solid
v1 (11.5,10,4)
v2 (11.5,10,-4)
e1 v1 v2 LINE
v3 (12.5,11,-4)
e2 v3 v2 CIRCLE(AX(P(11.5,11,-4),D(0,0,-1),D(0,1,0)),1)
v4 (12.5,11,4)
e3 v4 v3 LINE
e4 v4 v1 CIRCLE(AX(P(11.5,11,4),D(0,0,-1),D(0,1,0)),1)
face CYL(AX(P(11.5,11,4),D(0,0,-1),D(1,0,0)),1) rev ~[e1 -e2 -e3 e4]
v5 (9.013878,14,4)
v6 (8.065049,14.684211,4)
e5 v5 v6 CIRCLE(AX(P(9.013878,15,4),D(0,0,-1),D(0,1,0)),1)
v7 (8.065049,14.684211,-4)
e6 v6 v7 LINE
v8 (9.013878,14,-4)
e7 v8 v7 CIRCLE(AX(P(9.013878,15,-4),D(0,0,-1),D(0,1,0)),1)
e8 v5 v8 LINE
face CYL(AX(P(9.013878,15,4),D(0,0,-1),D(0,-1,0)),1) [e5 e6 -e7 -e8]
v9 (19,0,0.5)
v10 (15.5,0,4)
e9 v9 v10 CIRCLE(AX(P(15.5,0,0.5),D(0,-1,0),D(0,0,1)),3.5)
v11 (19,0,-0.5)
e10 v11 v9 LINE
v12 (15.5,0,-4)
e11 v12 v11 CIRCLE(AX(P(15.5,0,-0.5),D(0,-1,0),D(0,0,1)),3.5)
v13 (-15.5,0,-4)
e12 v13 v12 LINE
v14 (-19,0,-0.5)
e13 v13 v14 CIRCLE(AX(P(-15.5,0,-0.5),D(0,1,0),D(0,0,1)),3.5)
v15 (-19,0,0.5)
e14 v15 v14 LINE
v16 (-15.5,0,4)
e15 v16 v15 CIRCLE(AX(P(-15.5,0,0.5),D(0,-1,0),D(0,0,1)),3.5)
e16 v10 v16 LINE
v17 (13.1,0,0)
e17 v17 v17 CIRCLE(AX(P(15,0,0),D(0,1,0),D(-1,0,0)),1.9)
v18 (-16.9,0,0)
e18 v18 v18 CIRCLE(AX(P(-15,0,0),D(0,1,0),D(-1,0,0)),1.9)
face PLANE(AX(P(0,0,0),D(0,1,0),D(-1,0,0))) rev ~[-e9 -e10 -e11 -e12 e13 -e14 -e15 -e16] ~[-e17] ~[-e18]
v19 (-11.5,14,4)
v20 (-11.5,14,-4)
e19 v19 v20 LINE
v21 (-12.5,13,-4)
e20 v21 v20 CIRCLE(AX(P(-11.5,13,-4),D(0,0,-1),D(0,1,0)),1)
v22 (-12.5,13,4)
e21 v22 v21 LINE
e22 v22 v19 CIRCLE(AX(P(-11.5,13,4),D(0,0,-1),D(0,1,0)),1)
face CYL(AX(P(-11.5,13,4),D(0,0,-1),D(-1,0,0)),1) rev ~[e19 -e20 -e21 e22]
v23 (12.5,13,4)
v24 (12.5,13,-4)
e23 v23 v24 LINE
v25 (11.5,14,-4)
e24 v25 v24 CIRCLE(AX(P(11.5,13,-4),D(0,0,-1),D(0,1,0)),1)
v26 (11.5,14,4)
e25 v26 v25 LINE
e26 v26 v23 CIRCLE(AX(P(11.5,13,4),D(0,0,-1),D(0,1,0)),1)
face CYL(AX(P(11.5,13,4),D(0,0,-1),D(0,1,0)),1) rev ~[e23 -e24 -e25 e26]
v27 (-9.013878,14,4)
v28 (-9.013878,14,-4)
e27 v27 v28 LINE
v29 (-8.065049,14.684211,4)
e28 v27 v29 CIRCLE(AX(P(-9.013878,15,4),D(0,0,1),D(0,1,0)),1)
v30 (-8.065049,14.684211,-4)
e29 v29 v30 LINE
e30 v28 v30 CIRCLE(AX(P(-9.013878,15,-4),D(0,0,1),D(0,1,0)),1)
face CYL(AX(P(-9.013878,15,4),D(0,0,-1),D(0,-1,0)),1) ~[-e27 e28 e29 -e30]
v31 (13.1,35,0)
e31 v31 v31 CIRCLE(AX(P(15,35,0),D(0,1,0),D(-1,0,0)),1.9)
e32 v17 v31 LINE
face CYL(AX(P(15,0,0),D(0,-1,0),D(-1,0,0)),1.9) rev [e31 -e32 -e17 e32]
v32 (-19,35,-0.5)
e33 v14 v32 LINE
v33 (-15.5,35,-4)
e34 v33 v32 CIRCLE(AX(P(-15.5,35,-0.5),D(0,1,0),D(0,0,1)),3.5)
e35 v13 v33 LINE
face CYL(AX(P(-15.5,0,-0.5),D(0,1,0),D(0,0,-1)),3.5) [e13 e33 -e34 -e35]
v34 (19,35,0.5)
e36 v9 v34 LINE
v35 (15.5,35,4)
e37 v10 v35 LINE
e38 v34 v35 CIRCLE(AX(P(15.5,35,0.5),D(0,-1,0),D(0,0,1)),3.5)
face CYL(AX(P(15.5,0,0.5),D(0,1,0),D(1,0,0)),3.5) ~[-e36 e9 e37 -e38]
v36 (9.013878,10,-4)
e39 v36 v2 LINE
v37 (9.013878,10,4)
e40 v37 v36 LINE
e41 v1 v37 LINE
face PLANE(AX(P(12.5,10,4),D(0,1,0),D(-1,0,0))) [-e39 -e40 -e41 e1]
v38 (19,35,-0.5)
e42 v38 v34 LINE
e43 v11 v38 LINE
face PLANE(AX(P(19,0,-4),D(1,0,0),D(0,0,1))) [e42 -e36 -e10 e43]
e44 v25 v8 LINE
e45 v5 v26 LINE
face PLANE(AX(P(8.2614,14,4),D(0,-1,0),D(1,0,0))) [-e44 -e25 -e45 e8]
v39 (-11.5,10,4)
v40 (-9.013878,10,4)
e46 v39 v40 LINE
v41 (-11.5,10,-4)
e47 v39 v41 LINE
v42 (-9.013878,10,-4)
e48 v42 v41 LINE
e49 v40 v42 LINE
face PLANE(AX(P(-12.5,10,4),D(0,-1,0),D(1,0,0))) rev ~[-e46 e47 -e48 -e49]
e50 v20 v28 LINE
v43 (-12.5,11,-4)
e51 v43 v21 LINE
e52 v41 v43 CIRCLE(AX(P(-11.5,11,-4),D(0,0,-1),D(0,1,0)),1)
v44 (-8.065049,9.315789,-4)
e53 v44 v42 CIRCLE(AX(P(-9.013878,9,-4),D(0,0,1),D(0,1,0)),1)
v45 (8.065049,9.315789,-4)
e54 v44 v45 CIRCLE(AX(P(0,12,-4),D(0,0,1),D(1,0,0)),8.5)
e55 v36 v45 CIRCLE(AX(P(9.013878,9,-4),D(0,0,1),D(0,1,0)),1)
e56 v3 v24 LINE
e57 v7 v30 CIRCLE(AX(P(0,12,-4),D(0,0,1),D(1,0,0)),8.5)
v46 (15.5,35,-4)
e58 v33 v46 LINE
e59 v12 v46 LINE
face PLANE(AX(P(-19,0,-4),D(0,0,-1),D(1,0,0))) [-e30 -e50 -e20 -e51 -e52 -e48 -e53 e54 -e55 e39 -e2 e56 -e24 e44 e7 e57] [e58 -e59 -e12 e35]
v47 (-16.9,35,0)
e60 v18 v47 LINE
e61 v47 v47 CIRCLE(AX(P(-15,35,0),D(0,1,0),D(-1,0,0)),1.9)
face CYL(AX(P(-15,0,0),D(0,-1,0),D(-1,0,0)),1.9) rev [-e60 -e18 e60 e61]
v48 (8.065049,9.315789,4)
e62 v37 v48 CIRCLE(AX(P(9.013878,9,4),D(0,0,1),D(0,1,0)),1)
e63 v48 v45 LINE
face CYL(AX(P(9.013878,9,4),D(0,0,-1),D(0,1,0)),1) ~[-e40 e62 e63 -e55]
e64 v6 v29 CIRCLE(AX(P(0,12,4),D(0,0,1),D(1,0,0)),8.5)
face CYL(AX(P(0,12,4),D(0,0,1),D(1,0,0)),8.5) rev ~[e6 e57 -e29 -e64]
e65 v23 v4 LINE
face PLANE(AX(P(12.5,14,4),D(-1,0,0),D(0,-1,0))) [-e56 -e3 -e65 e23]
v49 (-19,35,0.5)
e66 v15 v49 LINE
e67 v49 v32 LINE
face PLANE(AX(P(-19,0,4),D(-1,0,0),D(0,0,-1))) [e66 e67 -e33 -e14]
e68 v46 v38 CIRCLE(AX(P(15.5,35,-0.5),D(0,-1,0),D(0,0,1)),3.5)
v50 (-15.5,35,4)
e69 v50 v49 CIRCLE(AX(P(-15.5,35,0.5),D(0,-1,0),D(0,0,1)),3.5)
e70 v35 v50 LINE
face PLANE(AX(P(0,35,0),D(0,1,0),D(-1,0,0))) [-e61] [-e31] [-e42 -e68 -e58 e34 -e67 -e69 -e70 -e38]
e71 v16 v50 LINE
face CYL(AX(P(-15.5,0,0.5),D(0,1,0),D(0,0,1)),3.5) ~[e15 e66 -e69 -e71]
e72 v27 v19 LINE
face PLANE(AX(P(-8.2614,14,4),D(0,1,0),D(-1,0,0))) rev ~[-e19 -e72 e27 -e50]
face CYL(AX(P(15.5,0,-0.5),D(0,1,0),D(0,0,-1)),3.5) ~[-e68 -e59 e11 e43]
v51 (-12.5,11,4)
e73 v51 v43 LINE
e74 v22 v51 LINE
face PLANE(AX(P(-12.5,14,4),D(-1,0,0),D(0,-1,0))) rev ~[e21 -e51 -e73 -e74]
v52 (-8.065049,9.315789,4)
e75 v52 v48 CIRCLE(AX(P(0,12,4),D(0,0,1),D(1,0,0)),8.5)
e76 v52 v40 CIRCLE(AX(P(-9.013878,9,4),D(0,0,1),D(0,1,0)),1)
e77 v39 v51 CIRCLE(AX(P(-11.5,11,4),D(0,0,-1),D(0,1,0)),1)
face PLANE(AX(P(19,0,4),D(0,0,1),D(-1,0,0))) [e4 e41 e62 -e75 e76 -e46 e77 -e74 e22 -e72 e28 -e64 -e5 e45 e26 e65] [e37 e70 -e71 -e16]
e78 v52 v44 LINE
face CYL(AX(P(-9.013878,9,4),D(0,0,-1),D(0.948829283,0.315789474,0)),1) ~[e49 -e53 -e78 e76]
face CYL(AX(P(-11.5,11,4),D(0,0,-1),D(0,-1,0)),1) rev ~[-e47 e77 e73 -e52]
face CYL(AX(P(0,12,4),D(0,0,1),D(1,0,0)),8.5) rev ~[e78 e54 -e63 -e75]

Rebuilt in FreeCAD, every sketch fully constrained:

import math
import FreeCAD as App
import Part
import Sketcher

V = App.Vector
Q = App.Units.Quantity


def edges_at(feature, points):
    """Names of the edges that pass closest to the given points."""
    edges = feature.Shape.Edges
    near = lambda p: min(range(len(edges)), key=lambda i: edges[i].distToShape(Part.Vertex(*p))[0])
    return sorted({f"Edge{near(p) + 1}" for p in points})

doc = App.newDocument("Part")
body = doc.addObject("PartDesign::Body", "Body")

sketch1 = doc.addObject("Sketcher::SketchObject", "Sketch")
body.addObject(sketch1)
sketch1.AttachmentSupport = (doc.XZ_Plane, [""])
sketch1.MapMode = "FlatFace"
sketch1.addGeometry([
    Part.LineSegment(V(19, -4, 0), V(-19, -4, 0)),
    Part.LineSegment(V(-19, -4, 0), V(-19, 4, 0)),
    Part.LineSegment(V(-19, 4, 0), V(19, 4, 0)),
    Part.LineSegment(V(19, 4, 0), V(19, -4, 0)),
    Part.Circle(V(15, 0, 0), V(0, 0, 1), 1.9),
    Part.Circle(V(-15, 0, 0), V(0, 0, 1), 1.9),
], False)
sketch1.addConstraint([
    Sketcher.Constraint("Coincident", 0, 2, 1, 1),
    Sketcher.Constraint("Coincident", 1, 2, 2, 1),
    Sketcher.Constraint("Coincident", 2, 2, 3, 1),
    Sketcher.Constraint("Coincident", 3, 2, 0, 1),
    Sketcher.Constraint("Horizontal", 0),
    Sketcher.Constraint("Vertical", 1),
    Sketcher.Constraint("Horizontal", 2),
    Sketcher.Constraint("Vertical", 3),
    Sketcher.Constraint("Equal", 4, 5),
    Sketcher.Constraint("Symmetric", 4, 3, 5, 3, -1, 1),
    Sketcher.Constraint("Symmetric", 0, 2, 2, 2, -1, 1),
    Sketcher.Constraint("PointOnObject", 4, 3, -1),
    Sketcher.Constraint("Diameter", 4, Q("3.8 mm")),
    Sketcher.Constraint("DistanceX", 0, 2, 0, 1, Q("38 mm")),
    Sketcher.Constraint("DistanceY", 1, 1, 1, 2, Q("8 mm")),
    Sketcher.Constraint("DistanceX", 5, 3, 4, 3, Q("30 mm")),
])
pad1 = doc.addObject("PartDesign::Pad", "Pad")
body.addObject(pad1)
pad1.Profile = sketch1
pad1.Length = 35
pad1.Reversed = True
doc.recompute()

fillet = doc.addObject("PartDesign::Fillet", "Fillet")
body.addObject(fillet)
fillet.Base = (pad1, edges_at(pad1, [
    (19, 17.5, 4),
    (19, 17.5, -4),
    (-19, 17.5, 4),
    (-19, 17.5, -4),
]))
fillet.Radius = 3.5

sketch2 = doc.addObject("Sketcher::SketchObject", "Sketch001")
body.addObject(sketch2)
sketch2.AttachmentSupport = (doc.XY_Plane, [""])
sketch2.MapMode = "FlatFace"
sketch2.AttachmentOffset = App.Placement(V(0, 0, 4), App.Rotation())
sketch2.addGeometry(Part.Circle(V(0, 12, 0), V(0, 0, 1), 8), False)
sketch2.addConstraint([
    Sketcher.Constraint("PointOnObject", 0, 3, -2),
    Sketcher.Constraint("Diameter", 0, Q("17 mm")),
    Sketcher.Constraint("DistanceY", -1, 1, 0, 3, Q("12 mm")),
])
pocket1 = doc.addObject("PartDesign::Pocket", "Pocket")
body.addObject(pocket1)
pocket1.Profile = sketch2
pocket1.Length = 35

sketch3 = doc.addObject("Sketcher::SketchObject", "Sketch002")
body.addObject(sketch3)
sketch3.AttachmentSupport = (doc.XY_Plane, [""])
sketch3.MapMode = "FlatFace"
sketch3.AttachmentOffset = App.Placement(V(0, 0, 4), App.Rotation())
sketch3.addGeometry([
    Part.ArcOfCircle(Part.Circle(V(0, 12, 0), V(0, 0, 1), 8.5), math.radians(-14), math.radians(14)),
    Part.LineSegment(V(8.3, 10, 0), V(12.5, 10, 0)),
    Part.LineSegment(V(12.5, 10, 0), V(12.5, 14, 0)),
    Part.LineSegment(V(12.5, 14, 0), V(8.3, 14, 0)),
    Part.ArcOfCircle(Part.Circle(V(0, 12, 0), V(0, 0, 1), 8.5), math.radians(166), math.radians(194)),
    Part.LineSegment(V(-8.3, 14, 0), V(-12.5, 14, 0)),
    Part.LineSegment(V(-12.5, 14, 0), V(-12.5, 10, 0)),
    Part.LineSegment(V(-12.5, 10, 0), V(-8.3, 10, 0)),
], False)
sketch3.addConstraint([
    Sketcher.Constraint("Coincident", 0, 1, 1, 1),
    Sketcher.Constraint("Coincident", 1, 2, 2, 1),
    Sketcher.Constraint("Coincident", 2, 2, 3, 1),
    Sketcher.Constraint("Coincident", 3, 2, 0, 2),
    Sketcher.Constraint("Coincident", 4, 1, 5, 1),
    Sketcher.Constraint("Coincident", 5, 2, 6, 1),
    Sketcher.Constraint("Coincident", 6, 2, 7, 1),
    Sketcher.Constraint("Coincident", 7, 2, 4, 2),
    Sketcher.Constraint("Horizontal", 1),
    Sketcher.Constraint("Vertical", 2),
    Sketcher.Constraint("Horizontal", 3),
    Sketcher.Constraint("Horizontal", 5),
    Sketcher.Constraint("Vertical", 6),
    Sketcher.Constraint("Horizontal", 7),
    Sketcher.Constraint("Coincident", 4, 3, 0, 3),
    Sketcher.Constraint("Equal", 0, 4),
    Sketcher.Constraint("Symmetric", 3, 2, 4, 1, -2),
    Sketcher.Constraint("Symmetric", 1, 2, 6, 2, -2),
    Sketcher.Constraint("Vertical", 0, 1, 3, 2),
    Sketcher.Constraint("DistanceY", 2, 1, 2, 2, Q("4 mm")),
    Sketcher.Constraint("Radius", 0, Q("8.5 mm")),
    Sketcher.Constraint("DistanceY", -1, 1, 0, 3, Q("12 mm")),
    Sketcher.Constraint("DistanceX", -1, 1, 1, 2, Q("12.5 mm")),
])
pocket2 = doc.addObject("PartDesign::Pocket", "Pocket001")
body.addObject(pocket2)
pocket2.Profile = sketch3
pocket2.Length = 10
doc.recompute()

fillet2 = doc.addObject("PartDesign::Fillet", "Fillet001")
body.addObject(fillet2)
fillet2.Base = (pocket2, edges_at(pocket2, [
    (-12.5, 14, 0),
    (-12.5, 10, 0),
    (-8.261, 14, 0),
    (-8.261, 10, 0),
    (8.261, 14, 0),
    (8.261, 10, 0),
    (12.5, 10, 0),
    (12.5, 14, 0),
]))
fillet2.Radius = 1

doc.recompute()
